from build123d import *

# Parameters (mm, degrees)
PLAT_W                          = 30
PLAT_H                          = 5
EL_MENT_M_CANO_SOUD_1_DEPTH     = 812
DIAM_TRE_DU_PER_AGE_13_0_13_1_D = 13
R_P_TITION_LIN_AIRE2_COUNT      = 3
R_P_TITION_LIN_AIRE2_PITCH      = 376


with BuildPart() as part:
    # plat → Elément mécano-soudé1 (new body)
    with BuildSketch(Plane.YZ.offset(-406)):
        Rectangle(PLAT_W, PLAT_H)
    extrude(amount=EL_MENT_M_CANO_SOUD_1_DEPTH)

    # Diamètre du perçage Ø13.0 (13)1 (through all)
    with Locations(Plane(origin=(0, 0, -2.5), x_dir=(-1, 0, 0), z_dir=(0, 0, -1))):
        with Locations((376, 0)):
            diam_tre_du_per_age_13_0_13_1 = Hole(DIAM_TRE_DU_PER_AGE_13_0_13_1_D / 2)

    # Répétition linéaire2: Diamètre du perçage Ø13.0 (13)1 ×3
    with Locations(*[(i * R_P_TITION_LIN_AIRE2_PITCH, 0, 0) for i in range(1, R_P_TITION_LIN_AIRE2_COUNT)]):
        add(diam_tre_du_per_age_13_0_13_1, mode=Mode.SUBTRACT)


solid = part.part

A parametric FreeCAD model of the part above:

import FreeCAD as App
import Part
import Sketcher


def add_polygon(sketch, points):
    """Adds a closed chain of lines whose ends are joined by coincident constraints."""
    first, n = sketch.GeometryCount, len(points)
    for a, b in zip(points, points[1:] + points[:1]):
        sketch.addGeometry(Part.LineSegment(App.Vector(*a, 0), App.Vector(*b, 0)), False)
    for i in range(n):
        sketch.addConstraint(Sketcher.Constraint("Coincident", first + i, 2, first + (i + 1) % n, 1))

doc = App.newDocument("Part")
body = doc.addObject("PartDesign::Body", "Body")

sketch1 = body.newObject("Sketcher::SketchObject", "Sketch")
sketch1.AttachmentSupport = (doc.getObject("YZ_Plane"), [""])
sketch1.MapMode = "FlatFace"
sketch1.AttachmentOffset = App.Placement(App.Vector(0, 0, -406), App.Rotation())
add_polygon(sketch1, [(-15, 2), (-15, -2), (15, -2), (15, 2)])
sketch1.addConstraint([
    Sketcher.Constraint("Vertical", 0),
    Sketcher.Constraint("Horizontal", 1),
    Sketcher.Constraint("Vertical", 2),
    Sketcher.Constraint("Horizontal", 3),
    Sketcher.Constraint("Symmetric", 0, 2, 2, 2, -1, 1),
    Sketcher.Constraint("DistanceX", 1, 1, 1, 2, 30.0),
    Sketcher.Constraint("DistanceY", 0, 2, 0, 1, 5.0),
])
pad1 = body.newObject("PartDesign::Pad", "Pad")
pad1.Profile = sketch1
pad1.Length = 812

sketch2 = body.newObject("Sketcher::SketchObject", "Sketch001")
sketch2.AttachmentSupport = (doc.getObject("XY_Plane"), [""])
sketch2.MapMode = "FlatFace"
sketch2.AttachmentOffset = App.Placement(App.Vector(0, 0, -2.5), App.Rotation())
sketch2.addGeometry(Part.Circle(App.Vector(-376, 0, 0), App.Vector(0, 0, 1), 6), False)
sketch2.addConstraint([
    Sketcher.Constraint("PointOnObject", 0, 3, -1),
    Sketcher.Constraint("Diameter", 0, 13.0),
    Sketcher.Constraint("DistanceX", 0, 3, -1, 1, 376.0),
])
doc.recompute()
hole = body.newObject("PartDesign::Hole", "Hole")
hole.Profile = sketch2
hole.ThreadType = "None"
hole.Diameter = 13
hole.DepthType = "ThroughAll"
hole.Reversed = True
doc.recompute()

linearpattern = body.newObject("PartDesign::LinearPattern", "LinearPattern")
linearpattern.Originals = [hole]
linearpattern.Direction = (doc.getObject("X_Axis"), [""])
linearpattern.Mode = "offset"
linearpattern.Offset = 376
linearpattern.Occurrences = 3
body.Tip = linearpattern

doc.recompute()
